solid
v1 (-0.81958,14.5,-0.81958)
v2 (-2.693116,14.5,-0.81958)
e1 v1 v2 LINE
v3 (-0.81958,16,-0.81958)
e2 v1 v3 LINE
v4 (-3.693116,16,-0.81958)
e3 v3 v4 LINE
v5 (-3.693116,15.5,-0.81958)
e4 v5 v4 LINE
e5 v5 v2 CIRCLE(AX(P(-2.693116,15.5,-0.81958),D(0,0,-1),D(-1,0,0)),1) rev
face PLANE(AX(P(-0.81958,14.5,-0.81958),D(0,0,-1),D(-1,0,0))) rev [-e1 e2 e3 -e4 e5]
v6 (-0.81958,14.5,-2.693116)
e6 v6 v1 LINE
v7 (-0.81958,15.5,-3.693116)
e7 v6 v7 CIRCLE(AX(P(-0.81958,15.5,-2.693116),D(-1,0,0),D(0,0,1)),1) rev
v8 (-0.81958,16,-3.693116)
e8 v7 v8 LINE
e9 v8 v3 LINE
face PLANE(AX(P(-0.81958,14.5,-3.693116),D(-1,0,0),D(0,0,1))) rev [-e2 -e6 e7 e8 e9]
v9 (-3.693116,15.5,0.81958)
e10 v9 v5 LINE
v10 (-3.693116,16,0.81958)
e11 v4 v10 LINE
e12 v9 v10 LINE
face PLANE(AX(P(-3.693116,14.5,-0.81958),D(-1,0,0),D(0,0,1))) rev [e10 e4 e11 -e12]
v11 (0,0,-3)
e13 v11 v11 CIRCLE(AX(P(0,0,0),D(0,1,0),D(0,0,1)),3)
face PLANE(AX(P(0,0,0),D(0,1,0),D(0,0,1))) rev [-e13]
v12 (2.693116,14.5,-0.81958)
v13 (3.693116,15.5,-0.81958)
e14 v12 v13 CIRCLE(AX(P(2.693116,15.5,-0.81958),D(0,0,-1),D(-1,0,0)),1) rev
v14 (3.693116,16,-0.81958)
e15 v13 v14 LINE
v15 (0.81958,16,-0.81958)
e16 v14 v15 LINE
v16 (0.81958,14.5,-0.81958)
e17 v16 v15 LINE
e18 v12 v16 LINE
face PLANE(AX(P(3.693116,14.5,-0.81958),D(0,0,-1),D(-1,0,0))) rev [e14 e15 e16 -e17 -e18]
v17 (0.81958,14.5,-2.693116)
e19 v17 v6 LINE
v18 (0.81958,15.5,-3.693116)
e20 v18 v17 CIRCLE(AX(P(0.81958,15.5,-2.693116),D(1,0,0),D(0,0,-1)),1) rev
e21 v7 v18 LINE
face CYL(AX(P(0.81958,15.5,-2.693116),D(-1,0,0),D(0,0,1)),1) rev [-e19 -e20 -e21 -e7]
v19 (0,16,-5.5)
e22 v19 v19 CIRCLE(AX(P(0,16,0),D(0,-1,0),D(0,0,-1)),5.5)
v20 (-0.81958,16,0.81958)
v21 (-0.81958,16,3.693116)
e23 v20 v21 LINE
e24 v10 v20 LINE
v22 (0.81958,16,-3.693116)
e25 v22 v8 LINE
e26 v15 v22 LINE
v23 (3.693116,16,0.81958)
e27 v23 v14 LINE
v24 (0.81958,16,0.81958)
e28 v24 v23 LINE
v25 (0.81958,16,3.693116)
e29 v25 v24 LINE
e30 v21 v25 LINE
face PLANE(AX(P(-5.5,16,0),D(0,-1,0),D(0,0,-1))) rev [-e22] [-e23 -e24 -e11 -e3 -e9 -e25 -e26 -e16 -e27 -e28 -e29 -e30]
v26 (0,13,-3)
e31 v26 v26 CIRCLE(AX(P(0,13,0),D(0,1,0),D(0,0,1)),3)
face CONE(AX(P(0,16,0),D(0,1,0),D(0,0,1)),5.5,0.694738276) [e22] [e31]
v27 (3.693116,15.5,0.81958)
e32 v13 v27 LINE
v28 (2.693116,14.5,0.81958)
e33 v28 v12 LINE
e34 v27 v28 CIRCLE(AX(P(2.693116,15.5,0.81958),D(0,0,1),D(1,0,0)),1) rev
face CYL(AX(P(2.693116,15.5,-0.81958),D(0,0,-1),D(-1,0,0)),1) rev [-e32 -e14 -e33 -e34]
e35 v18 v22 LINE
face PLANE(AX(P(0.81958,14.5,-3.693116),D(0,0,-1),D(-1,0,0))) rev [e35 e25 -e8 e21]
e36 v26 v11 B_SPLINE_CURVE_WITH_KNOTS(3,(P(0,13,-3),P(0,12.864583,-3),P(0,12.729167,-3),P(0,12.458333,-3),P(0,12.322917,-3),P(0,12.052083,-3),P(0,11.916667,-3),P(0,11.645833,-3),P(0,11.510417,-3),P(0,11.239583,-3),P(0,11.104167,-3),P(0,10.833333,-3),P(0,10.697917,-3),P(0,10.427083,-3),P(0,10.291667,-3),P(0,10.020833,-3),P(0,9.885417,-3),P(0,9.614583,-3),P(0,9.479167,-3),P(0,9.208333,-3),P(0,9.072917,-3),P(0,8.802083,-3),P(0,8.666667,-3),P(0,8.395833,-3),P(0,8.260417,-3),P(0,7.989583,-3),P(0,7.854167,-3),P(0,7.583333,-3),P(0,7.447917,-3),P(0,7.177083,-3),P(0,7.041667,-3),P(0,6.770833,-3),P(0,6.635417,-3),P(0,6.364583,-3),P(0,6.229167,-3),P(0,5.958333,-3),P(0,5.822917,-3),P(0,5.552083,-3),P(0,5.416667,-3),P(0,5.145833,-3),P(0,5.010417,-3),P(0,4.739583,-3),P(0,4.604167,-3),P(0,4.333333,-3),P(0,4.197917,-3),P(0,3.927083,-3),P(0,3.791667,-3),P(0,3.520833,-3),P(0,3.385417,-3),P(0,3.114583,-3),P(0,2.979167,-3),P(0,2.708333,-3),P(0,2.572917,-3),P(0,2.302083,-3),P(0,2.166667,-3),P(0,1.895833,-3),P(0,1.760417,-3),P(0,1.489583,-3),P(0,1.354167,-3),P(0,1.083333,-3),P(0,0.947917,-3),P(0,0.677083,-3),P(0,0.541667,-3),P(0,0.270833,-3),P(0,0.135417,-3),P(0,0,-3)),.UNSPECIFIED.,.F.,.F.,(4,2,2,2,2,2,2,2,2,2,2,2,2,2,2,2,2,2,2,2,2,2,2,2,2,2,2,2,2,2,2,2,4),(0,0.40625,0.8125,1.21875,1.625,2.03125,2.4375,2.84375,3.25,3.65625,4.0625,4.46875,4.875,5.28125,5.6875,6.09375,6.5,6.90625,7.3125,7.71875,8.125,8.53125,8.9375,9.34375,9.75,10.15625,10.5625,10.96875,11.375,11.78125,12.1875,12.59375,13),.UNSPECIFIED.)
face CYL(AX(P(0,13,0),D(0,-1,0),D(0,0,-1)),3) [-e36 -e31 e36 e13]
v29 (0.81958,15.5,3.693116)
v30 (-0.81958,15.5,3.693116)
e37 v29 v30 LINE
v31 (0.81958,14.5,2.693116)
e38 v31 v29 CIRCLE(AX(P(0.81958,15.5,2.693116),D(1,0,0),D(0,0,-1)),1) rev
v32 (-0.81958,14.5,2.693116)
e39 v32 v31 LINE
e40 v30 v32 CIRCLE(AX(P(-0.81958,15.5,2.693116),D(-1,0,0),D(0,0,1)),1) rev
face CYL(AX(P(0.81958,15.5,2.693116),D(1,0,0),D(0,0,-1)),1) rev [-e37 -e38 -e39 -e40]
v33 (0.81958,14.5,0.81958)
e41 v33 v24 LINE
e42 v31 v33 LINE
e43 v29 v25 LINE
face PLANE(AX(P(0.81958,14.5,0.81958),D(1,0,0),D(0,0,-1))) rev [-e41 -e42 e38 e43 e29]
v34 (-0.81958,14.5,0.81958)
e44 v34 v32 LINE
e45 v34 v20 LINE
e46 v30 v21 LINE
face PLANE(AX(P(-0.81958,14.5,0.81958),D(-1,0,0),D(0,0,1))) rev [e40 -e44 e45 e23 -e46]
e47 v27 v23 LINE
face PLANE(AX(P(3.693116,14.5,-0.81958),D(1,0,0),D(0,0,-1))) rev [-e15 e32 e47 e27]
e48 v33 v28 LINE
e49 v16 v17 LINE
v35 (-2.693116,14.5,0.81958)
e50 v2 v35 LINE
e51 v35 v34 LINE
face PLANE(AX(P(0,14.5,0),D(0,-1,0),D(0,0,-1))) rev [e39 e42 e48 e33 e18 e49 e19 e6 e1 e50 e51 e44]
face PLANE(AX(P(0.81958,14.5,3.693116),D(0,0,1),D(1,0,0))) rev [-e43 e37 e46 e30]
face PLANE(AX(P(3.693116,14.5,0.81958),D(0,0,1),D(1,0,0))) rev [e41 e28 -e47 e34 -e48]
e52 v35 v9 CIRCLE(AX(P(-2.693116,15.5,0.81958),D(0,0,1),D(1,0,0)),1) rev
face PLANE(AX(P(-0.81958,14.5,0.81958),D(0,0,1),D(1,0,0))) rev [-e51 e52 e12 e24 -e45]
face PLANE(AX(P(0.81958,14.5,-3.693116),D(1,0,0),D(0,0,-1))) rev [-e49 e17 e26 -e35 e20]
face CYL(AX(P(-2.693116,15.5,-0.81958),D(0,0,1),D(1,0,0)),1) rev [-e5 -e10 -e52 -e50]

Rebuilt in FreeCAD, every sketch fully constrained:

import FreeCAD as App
import Part
import Sketcher

V = App.Vector
Q = App.Units.Quantity


def edges_at(feature, points):
    """Names of the edges that pass closest to the given points."""
    edges = feature.Shape.Edges
    near = lambda p: min(range(len(edges)), key=lambda i: edges[i].distToShape(Part.Vertex(*p))[0])
    return sorted({f"Edge{near(p) + 1}" for p in points})

doc = App.newDocument("Part")
body = doc.addObject("PartDesign::Body", "Body")

sketch1 = body.newObject("Sketcher::SketchObject", "Sketch")
sketch1.AttachmentSupport = (doc.getObject("XZ_Plane"), [""])
sketch1.MapMode = "FlatFace"
sketch1.addGeometry(Part.Circle(V(0, 0, 0), V(0, 0, 1), 3), False)
sketch1.addConstraint([
    Sketcher.Constraint("Coincident", 0, 3, -1, 1),
    Sketcher.Constraint("Diameter", 0, Q("6 mm")),
])
pad1 = body.newObject("PartDesign::Pad", "Pad")
pad1.Profile = sketch1
pad1.Length = 13
pad1.Reversed = True

sketch2 = body.newObject("Sketcher::SketchObject", "Sketch001")
sketch2.AttachmentSupport = (doc.getObject("XY_Plane"), [""])
sketch2.MapMode = "FlatFace"
sketch2.addGeometry([
    Part.LineSegment(V(0, 13, 0), V(0, 16, 0)),
    Part.LineSegment(V(0, 16, 0), V(-5.5, 16, 0)),
    Part.LineSegment(V(-5.5, 16, 0), V(-3, 13, 0)),
    Part.LineSegment(V(-3, 13, 0), V(0, 13, 0)),
], False)
sketch2.addConstraint([
    Sketcher.Constraint("Coincident", 0, 2, 1, 1),
    Sketcher.Constraint("Coincident", 1, 2, 2, 1),
    Sketcher.Constraint("Coincident", 2, 2, 3, 1),
    Sketcher.Constraint("Coincident", 3, 2, 0, 1),
    Sketcher.Constraint("Vertical", 0),
    Sketcher.Constraint("Horizontal", 1),
    Sketcher.Constraint("Horizontal", 3),
    Sketcher.Constraint("PointOnObject", 0, 2, -2),
    Sketcher.Constraint("Equal", 3, 0),
    Sketcher.Constraint("DistanceX", 3, 1, 3, 2, Q("3 mm")),
    Sketcher.Constraint("DistanceX", 1, 2, 1, 1, Q("5.5 mm")),
    Sketcher.Constraint("DistanceY", -1, 1, 0, 2, Q("16 mm")),
])
revolution = body.newObject("PartDesign::Revolution", "Revolution")
revolution.Profile = sketch2
revolution.ReferenceAxis = (sketch2, ["V_Axis"])
revolution.Angle = 360

sketch3 = body.newObject("Sketcher::SketchObject", "Sketch002")
sketch3.AttachmentSupport = (doc.getObject("XZ_Plane"), [""])
sketch3.MapMode = "FlatFace"
sketch3.AttachmentOffset = App.Placement(V(0, 0, -16), App.Rotation())
sketch3.addGeometry([
    Part.LineSegment(V(-0.8, -0.8, 0), V(-3.7, -0.8, 0)),
    Part.LineSegment(V(-3.7, -0.8, 0), V(-3.7, 0.8, 0)),
    Part.LineSegment(V(-3.7, 0.8, 0), V(-0.8, 0.8, 0)),
    Part.LineSegment(V(-0.8, 0.8, 0), V(-0.8, 3.7, 0)),
    Part.LineSegment(V(-0.8, 3.7, 0), V(0.8, 3.7, 0)),
    Part.LineSegment(V(0.8, 3.7, 0), V(0.8, 0.8, 0)),
    Part.LineSegment(V(0.8, 0.8, 0), V(3.7, 0.8, 0)),
    Part.LineSegment(V(3.7, 0.8, 0), V(3.7, -0.8, 0)),
    Part.LineSegment(V(3.7, -0.8, 0), V(0.8, -0.8, 0)),
    Part.LineSegment(V(0.8, -0.8, 0), V(0.8, -3.7, 0)),
    Part.LineSegment(V(0.8, -3.7, 0), V(-0.8, -3.7, 0)),
    Part.LineSegment(V(-0.8, -3.7, 0), V(-0.8, -0.8, 0)),
], False)
sketch3.addConstraint([
    Sketcher.Constraint("Coincident", 0, 2, 1, 1),
    Sketcher.Constraint("Coincident", 1, 2, 2, 1),
    Sketcher.Constraint("Coincident", 2, 2, 3, 1),
    Sketcher.Constraint("Coincident", 3, 2, 4, 1),
    Sketcher.Constraint("Coincident", 4, 2, 5, 1),
    Sketcher.Constraint("Coincident", 5, 2, 6, 1),
    Sketcher.Constraint("Coincident", 6, 2, 7, 1),
    Sketcher.Constraint("Coincident", 7, 2, 8, 1),
    Sketcher.Constraint("Coincident", 8, 2, 9, 1),
    Sketcher.Constraint("Coincident", 9, 2, 10, 1),
    Sketcher.Constraint("Coincident", 10, 2, 11, 1),
    Sketcher.Constraint("Coincident", 11, 2, 0, 1),
    Sketcher.Constraint("Horizontal", 0),
    Sketcher.Constraint("Vertical", 1),
    Sketcher.Constraint("Horizontal", 2),
    Sketcher.Constraint("Vertical", 3),
    Sketcher.Constraint("Horizontal", 4),
    Sketcher.Constraint("Vertical", 5),
    Sketcher.Constraint("Horizontal", 6),
    Sketcher.Constraint("Vertical", 7),
    Sketcher.Constraint("Horizontal", 8),
    Sketcher.Constraint("Vertical", 9),
    Sketcher.Constraint("Horizontal", 10),
    Sketcher.Constraint("Vertical", 11),
    Sketcher.Constraint("Symmetric", 0, 2, 6, 2, -1, 1),
    Sketcher.Constraint("Symmetric", 2, 2, 8, 2, -1, 1),
    Sketcher.Constraint("Symmetric", 4, 2, 10, 2, -1, 1),
    Sketcher.Constraint("Symmetric", 2, 2, 5, 2, -2),
    Sketcher.Constraint("Equal", 10, 1),
    Sketcher.Constraint("Equal", 8, 3),
    Sketcher.Constraint("DistanceX", 4, 1, 4, 2, Q("1.63916 mm")),
    Sketcher.Constraint("DistanceX", 0, 2, 0, 1, Q("2.873536 mm")),
])
pocket1 = body.newObject("PartDesign::Pocket", "Pocket")
pocket1.Profile = sketch3
pocket1.Length = 1.5
pocket1.Reversed = True
doc.recompute()

fillet = body.newObject("PartDesign::Fillet", "Fillet")
fillet.Base = (pocket1, edges_at(pocket1, [(0, 14.5, -3.693)]))
fillet.Radius = 1
doc.recompute()

fillet2 = body.newObject("PartDesign::Fillet", "Fillet001")
fillet2.Base = (fillet, edges_at(fillet, [(3.693, 14.5, 0)]))
fillet2.Radius = 1
doc.recompute()

fillet3 = body.newObject("PartDesign::Fillet", "Fillet002")
fillet3.Base = (fillet2, edges_at(fillet2, [(0, 14.5, 3.693)]))
fillet3.Radius = 1
doc.recompute()

fillet4 = body.newObject("PartDesign::Fillet", "Fillet003")
fillet4.Base = (fillet3, edges_at(fillet3, [(-3.693, 14.5, 0)]))
fillet4.Radius = 1

doc.recompute()
